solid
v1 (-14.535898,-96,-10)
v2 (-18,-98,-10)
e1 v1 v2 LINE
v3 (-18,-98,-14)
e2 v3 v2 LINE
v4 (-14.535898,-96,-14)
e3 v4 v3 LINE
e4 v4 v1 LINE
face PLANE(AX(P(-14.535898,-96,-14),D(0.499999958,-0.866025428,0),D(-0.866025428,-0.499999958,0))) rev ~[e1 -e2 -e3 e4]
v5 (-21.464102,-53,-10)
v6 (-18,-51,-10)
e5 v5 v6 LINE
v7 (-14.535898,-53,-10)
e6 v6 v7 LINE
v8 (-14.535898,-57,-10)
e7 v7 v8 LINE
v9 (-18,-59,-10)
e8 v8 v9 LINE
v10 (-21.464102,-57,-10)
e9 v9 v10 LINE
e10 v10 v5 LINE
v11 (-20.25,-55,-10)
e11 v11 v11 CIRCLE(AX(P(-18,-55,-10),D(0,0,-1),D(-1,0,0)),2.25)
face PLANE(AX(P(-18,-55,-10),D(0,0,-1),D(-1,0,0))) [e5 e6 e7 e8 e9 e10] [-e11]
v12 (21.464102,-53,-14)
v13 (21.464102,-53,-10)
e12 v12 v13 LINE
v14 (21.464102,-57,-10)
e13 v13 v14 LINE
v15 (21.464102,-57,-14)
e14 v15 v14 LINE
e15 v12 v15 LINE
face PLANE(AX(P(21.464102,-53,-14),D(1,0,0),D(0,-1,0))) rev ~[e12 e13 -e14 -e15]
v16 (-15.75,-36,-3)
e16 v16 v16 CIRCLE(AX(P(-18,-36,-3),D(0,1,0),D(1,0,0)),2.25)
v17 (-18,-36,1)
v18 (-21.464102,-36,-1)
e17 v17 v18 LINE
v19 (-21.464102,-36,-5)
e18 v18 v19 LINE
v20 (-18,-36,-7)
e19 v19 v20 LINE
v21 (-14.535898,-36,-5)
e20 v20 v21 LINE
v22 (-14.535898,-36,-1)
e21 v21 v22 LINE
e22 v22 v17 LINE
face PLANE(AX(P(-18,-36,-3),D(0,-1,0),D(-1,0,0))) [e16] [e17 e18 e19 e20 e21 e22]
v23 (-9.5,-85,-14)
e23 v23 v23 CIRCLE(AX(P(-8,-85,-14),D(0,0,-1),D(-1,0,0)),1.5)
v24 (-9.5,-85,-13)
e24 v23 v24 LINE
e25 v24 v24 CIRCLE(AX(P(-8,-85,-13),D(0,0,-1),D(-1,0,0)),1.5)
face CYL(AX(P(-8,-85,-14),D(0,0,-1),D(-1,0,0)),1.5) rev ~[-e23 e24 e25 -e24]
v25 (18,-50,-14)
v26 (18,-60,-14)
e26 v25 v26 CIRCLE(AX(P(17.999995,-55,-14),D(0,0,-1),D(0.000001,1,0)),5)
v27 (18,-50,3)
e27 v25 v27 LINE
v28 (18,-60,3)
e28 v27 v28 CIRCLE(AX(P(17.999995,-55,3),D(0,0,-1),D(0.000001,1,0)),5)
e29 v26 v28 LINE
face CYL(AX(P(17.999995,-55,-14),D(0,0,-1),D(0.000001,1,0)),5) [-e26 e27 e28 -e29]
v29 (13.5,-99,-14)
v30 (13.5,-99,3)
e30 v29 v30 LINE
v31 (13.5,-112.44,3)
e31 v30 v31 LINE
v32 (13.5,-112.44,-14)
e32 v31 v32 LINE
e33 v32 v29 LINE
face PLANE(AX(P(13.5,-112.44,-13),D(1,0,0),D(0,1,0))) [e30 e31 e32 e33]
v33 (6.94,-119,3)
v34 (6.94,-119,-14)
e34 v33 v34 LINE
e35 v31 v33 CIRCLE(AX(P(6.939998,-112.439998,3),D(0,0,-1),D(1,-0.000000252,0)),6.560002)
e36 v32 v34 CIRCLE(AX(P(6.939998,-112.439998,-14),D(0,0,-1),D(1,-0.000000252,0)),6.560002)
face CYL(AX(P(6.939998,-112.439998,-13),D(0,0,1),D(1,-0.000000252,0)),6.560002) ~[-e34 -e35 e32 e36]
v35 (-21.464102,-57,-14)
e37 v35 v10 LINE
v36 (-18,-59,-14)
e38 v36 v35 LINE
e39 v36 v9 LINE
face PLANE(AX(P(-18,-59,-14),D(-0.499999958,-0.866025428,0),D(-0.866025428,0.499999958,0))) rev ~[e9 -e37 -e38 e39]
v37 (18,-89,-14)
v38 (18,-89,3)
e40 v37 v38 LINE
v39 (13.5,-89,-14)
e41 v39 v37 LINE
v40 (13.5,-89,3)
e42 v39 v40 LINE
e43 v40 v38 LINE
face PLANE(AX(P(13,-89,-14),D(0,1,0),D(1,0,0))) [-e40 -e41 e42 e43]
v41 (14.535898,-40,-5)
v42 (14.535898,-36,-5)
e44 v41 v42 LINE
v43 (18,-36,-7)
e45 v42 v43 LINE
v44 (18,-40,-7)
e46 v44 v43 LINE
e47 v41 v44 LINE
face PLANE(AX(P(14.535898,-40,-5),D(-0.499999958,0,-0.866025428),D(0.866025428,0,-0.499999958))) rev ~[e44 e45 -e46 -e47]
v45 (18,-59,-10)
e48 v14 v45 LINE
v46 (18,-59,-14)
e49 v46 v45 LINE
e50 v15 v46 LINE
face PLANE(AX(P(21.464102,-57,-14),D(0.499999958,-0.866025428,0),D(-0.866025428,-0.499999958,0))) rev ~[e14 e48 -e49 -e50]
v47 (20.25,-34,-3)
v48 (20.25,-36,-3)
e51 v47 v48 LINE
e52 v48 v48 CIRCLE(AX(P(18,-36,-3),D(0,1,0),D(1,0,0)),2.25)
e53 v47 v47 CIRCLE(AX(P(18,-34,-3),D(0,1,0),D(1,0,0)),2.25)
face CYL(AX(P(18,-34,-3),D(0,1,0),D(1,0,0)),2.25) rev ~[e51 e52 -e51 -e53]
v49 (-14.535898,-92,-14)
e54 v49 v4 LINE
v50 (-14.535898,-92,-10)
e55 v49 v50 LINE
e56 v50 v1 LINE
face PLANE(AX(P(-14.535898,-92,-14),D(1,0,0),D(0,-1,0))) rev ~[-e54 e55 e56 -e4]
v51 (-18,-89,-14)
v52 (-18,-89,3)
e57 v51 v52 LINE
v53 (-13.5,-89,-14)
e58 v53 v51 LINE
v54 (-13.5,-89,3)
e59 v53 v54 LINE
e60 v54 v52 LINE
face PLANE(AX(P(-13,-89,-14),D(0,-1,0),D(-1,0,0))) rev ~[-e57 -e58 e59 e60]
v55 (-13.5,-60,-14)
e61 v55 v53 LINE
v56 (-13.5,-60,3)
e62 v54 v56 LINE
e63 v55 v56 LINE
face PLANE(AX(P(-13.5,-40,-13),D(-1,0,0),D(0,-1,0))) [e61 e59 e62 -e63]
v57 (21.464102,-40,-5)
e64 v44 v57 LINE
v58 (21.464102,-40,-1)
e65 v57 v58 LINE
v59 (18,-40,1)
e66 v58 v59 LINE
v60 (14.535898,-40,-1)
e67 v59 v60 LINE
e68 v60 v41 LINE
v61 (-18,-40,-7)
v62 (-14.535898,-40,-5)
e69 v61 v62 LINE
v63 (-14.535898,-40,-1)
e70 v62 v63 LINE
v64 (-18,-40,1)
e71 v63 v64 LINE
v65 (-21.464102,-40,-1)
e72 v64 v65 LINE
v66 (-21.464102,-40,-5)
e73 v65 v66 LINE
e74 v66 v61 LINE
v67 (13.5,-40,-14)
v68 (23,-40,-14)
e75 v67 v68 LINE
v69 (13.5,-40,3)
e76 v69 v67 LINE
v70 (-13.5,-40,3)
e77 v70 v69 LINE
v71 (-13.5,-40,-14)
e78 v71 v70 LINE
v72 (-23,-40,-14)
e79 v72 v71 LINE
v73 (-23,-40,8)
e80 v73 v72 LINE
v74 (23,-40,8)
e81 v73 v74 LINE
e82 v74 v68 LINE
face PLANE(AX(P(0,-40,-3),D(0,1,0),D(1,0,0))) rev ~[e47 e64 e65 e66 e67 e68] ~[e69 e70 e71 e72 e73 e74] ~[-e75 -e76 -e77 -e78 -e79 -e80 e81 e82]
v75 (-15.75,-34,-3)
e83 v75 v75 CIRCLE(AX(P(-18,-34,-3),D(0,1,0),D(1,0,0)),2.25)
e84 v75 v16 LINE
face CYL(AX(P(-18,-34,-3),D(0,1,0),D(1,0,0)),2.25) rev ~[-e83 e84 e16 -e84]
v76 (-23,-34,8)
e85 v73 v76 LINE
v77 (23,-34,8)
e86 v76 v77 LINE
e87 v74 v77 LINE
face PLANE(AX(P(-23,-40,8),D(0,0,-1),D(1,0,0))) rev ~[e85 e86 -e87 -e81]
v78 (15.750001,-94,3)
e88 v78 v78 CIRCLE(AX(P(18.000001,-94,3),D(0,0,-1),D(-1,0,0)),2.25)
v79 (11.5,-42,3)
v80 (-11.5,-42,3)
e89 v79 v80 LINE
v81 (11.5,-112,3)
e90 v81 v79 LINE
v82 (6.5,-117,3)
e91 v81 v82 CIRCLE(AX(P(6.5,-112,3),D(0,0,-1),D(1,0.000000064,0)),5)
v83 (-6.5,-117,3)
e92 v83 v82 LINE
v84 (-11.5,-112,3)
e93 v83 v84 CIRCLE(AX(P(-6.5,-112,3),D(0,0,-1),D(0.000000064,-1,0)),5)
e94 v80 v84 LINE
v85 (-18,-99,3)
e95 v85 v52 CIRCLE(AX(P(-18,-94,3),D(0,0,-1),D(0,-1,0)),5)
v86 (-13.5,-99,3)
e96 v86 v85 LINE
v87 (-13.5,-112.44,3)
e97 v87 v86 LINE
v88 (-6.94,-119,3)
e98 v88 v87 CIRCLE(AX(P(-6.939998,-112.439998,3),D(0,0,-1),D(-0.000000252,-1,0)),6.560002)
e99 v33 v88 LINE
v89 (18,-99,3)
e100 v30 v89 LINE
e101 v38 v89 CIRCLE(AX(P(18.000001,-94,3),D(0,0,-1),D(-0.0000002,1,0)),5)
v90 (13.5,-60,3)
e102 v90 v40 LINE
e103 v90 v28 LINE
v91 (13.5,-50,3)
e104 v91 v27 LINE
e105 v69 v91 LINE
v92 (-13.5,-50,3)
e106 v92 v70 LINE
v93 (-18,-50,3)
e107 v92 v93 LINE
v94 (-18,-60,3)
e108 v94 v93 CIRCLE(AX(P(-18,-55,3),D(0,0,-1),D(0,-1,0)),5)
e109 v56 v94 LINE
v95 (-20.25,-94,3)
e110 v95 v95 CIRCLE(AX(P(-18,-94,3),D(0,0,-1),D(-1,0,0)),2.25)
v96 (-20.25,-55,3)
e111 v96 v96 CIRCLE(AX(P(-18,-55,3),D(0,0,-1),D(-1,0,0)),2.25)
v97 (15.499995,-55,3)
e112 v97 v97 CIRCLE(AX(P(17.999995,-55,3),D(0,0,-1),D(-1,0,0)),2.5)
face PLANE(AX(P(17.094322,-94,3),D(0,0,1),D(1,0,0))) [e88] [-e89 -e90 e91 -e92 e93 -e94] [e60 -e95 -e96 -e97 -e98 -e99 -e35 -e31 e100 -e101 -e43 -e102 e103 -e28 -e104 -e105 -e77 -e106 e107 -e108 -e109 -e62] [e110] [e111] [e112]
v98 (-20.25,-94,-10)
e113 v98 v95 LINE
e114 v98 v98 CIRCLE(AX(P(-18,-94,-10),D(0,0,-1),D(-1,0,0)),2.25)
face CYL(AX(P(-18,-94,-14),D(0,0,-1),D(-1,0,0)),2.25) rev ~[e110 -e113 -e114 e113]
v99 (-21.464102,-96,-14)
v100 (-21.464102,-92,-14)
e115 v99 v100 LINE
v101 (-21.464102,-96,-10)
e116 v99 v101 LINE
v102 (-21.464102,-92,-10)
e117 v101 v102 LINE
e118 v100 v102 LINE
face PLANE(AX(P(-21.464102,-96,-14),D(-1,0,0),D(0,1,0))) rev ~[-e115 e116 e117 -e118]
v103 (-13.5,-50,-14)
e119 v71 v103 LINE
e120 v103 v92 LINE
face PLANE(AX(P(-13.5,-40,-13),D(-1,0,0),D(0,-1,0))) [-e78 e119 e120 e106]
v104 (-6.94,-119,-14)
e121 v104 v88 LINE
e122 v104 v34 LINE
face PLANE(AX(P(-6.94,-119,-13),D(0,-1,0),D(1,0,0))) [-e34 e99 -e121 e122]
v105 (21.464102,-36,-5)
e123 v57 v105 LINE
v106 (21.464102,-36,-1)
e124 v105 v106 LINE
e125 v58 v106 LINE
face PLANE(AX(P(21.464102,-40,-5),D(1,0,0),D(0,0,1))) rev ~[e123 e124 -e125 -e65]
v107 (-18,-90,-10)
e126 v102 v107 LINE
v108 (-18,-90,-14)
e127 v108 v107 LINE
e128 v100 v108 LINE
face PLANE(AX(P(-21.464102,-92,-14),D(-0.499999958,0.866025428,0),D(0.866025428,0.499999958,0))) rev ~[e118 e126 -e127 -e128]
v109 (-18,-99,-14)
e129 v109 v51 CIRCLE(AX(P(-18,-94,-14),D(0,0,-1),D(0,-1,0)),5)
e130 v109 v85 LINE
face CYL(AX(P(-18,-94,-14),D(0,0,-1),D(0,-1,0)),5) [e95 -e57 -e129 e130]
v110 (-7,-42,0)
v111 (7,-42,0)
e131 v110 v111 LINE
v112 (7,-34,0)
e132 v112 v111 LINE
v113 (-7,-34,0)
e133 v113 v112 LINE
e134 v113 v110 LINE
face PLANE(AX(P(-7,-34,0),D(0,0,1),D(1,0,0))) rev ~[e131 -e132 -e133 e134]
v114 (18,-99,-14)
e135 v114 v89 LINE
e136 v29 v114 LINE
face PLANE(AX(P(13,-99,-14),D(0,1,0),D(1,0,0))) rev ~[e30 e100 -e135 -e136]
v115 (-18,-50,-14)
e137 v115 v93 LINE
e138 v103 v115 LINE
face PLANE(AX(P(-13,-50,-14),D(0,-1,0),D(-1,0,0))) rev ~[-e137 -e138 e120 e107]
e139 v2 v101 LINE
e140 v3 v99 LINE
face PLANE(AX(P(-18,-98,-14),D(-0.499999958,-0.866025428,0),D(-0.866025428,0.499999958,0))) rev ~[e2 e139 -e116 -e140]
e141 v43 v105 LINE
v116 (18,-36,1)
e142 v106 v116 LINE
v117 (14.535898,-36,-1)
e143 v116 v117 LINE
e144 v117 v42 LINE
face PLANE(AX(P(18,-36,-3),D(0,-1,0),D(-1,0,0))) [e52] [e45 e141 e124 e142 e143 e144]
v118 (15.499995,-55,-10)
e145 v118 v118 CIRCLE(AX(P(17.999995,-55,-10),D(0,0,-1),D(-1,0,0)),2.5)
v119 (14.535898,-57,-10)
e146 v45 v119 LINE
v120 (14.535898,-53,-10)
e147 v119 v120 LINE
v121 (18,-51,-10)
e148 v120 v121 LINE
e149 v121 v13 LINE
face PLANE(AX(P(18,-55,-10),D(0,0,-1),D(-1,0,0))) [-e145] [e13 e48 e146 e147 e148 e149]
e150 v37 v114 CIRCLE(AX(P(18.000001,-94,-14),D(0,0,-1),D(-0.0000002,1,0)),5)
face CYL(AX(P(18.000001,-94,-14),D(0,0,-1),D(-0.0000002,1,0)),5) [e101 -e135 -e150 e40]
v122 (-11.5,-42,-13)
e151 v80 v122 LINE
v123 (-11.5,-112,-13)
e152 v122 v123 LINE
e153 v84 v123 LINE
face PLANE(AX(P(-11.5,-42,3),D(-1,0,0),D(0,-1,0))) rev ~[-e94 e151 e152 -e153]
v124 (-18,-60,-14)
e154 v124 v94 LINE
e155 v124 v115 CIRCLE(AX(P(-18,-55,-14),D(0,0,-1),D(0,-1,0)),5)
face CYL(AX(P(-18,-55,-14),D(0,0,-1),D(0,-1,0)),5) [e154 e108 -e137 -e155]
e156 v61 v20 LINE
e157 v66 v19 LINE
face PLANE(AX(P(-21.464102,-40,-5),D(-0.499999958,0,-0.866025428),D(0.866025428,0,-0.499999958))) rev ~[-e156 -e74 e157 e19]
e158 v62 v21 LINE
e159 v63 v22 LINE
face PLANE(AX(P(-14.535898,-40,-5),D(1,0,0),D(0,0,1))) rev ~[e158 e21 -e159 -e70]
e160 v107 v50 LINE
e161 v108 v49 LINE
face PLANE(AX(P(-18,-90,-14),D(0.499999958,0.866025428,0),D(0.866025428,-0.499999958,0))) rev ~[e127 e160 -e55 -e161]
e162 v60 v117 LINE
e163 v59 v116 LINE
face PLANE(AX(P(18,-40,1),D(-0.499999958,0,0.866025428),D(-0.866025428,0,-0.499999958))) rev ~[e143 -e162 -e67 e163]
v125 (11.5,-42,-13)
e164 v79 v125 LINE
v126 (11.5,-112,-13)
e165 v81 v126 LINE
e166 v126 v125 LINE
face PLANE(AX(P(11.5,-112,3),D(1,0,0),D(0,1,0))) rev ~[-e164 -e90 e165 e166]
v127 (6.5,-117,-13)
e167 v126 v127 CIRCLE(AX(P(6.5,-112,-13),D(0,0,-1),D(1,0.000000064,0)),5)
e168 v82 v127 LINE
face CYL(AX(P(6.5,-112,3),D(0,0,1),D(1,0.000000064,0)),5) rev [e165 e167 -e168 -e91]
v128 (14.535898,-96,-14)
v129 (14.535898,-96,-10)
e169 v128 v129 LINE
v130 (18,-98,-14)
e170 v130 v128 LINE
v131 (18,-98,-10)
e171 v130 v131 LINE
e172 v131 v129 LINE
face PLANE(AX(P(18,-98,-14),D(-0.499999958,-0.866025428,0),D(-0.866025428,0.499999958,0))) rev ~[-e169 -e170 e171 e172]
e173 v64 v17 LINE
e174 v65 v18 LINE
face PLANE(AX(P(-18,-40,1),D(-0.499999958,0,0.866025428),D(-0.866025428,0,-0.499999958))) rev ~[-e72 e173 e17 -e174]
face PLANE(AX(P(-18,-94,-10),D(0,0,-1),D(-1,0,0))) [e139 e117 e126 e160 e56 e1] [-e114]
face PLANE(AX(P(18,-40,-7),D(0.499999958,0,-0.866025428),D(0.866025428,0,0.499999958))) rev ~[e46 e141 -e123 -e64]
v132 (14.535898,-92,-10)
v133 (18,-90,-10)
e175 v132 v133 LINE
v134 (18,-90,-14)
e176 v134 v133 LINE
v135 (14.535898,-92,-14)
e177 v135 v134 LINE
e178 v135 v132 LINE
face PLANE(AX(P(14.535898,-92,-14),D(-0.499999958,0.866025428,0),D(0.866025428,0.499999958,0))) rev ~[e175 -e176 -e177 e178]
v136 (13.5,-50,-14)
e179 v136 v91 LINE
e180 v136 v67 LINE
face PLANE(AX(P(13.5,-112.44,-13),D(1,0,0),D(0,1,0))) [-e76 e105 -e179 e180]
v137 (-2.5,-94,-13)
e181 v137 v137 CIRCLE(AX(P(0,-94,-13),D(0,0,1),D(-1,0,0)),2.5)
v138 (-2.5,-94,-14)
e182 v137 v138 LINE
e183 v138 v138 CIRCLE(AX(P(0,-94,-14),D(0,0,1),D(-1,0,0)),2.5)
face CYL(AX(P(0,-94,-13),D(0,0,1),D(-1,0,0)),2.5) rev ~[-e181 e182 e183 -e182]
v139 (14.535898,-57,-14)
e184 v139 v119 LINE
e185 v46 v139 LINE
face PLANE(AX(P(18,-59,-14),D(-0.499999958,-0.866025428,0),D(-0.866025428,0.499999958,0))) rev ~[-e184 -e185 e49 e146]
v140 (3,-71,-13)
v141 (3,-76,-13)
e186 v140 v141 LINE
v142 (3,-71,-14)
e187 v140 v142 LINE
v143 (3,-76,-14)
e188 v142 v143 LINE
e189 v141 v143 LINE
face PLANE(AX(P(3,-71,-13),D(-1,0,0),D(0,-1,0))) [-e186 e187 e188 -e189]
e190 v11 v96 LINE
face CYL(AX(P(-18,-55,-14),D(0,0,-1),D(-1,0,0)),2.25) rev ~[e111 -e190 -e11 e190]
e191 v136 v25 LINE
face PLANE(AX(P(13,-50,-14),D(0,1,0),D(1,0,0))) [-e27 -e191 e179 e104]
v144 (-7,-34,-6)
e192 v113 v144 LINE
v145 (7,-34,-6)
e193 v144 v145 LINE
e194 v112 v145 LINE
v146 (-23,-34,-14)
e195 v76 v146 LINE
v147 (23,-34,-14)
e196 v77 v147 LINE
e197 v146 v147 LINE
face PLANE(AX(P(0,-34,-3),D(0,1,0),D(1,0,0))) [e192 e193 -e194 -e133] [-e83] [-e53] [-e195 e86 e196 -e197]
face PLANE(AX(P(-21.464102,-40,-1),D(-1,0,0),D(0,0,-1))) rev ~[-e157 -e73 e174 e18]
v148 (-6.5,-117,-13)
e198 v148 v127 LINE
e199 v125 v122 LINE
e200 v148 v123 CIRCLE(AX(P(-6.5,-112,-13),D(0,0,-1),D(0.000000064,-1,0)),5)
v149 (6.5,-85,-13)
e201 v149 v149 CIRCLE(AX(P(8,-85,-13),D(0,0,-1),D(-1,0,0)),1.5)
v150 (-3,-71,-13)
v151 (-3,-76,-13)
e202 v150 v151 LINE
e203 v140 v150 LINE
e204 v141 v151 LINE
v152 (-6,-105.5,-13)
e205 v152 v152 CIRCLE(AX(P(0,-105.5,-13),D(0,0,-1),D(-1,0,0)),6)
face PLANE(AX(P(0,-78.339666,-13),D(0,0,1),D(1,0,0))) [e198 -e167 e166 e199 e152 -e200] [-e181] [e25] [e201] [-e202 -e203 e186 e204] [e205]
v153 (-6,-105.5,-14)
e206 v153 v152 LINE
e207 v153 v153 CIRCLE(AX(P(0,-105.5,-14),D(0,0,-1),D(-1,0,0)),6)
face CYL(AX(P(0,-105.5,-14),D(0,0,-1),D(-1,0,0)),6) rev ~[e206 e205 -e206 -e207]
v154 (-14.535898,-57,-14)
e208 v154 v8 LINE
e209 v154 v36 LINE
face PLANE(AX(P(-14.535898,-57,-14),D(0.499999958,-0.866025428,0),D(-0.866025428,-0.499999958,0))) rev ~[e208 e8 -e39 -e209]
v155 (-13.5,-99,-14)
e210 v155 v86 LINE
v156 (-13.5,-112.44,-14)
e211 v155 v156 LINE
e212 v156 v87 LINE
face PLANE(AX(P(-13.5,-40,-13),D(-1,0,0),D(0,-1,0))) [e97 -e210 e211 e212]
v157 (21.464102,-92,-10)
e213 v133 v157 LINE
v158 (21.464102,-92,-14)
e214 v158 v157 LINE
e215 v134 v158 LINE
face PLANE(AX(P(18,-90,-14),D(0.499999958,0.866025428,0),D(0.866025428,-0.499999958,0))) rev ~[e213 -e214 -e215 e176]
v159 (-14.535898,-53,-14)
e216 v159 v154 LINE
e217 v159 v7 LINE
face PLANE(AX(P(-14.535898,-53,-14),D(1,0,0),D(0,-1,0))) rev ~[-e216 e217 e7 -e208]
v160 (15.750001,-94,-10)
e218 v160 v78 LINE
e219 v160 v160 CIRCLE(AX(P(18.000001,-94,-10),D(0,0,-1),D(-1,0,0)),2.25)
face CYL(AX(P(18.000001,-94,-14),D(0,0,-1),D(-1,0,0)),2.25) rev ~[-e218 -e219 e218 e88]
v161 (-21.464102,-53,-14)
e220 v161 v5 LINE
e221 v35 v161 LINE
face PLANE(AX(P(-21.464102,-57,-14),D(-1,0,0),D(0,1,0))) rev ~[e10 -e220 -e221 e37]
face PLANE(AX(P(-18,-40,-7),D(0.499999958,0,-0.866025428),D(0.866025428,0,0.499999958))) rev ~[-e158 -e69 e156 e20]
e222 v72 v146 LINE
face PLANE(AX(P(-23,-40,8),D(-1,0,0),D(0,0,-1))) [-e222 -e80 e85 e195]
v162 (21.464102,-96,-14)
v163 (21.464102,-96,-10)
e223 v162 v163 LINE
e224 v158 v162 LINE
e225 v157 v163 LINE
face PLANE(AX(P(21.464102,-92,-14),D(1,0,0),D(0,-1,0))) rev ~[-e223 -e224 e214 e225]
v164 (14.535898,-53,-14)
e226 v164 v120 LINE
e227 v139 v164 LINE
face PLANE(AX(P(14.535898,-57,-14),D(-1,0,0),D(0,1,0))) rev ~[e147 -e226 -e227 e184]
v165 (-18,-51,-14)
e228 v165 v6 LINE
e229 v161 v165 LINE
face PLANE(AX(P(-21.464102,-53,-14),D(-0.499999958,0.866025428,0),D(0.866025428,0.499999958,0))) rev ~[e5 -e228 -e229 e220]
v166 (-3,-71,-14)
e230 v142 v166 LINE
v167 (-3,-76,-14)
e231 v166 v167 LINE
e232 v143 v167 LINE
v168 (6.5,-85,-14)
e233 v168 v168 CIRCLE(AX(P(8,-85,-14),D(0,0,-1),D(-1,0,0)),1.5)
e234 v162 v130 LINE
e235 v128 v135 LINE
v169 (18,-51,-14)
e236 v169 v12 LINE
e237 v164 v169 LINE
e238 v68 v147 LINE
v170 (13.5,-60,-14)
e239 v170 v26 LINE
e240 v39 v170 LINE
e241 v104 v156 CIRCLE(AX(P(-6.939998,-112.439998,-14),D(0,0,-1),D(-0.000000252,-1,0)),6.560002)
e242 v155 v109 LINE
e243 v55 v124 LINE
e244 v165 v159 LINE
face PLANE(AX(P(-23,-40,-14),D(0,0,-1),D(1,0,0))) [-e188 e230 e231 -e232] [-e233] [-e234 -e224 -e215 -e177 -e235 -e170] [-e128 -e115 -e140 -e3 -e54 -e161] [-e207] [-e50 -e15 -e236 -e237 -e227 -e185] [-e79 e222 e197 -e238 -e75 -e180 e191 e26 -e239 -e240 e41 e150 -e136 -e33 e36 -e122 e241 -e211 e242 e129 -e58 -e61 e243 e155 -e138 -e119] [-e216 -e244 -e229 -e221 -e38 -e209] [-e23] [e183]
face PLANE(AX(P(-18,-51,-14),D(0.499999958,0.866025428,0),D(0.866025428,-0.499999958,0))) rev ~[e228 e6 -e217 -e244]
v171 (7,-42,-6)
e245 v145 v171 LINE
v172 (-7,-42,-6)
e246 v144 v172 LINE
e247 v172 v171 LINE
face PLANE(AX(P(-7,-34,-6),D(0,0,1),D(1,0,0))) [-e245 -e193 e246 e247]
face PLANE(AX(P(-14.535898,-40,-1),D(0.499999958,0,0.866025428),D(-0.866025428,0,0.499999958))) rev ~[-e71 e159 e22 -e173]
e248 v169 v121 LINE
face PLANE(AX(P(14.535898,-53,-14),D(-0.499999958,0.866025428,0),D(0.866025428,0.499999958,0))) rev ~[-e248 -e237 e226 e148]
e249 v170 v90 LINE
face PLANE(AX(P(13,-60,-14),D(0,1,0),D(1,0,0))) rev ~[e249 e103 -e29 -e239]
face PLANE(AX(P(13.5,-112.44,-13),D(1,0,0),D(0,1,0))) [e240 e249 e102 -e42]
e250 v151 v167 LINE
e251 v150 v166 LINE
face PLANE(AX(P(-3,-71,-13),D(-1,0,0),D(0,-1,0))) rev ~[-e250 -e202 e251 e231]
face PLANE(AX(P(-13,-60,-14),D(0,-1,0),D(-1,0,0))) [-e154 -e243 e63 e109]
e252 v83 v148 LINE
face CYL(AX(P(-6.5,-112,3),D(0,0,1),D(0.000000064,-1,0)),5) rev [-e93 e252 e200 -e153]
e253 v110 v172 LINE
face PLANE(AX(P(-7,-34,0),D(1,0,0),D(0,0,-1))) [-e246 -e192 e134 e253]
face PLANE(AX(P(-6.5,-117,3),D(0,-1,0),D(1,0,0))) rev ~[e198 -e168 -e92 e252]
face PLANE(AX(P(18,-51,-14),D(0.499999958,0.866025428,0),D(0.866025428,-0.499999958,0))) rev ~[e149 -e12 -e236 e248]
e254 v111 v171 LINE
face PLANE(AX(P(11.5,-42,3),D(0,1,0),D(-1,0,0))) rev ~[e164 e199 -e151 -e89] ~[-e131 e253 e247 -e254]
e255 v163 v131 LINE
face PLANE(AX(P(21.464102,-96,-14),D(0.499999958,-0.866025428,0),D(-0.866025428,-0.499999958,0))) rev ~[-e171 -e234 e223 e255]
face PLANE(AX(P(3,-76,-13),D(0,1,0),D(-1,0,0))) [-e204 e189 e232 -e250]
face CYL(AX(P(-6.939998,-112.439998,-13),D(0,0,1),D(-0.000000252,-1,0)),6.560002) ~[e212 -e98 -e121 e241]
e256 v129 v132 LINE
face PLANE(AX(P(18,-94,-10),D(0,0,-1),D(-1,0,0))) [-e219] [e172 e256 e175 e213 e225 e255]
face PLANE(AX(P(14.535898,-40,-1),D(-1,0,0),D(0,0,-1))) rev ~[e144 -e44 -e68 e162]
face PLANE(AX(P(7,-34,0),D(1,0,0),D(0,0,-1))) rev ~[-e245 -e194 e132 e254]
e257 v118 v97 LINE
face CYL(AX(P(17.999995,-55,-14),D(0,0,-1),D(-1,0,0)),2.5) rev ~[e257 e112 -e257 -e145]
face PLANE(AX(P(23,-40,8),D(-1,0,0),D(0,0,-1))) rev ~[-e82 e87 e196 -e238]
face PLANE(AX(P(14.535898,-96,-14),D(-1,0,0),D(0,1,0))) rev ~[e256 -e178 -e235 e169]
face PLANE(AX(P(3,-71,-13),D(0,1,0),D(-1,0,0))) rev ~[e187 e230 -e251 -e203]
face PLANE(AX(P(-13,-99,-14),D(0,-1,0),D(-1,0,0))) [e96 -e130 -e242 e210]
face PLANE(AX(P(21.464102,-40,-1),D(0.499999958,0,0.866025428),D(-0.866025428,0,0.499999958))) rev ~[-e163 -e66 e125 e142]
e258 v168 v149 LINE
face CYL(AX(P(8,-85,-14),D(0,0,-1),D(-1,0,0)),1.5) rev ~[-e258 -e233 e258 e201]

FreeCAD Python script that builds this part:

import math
import FreeCAD as App
import Part
import Sketcher

V = App.Vector
Q = App.Units.Quantity

doc = App.newDocument("Part")
params = doc.addObject("Spreadsheet::Sheet", "Params")
for row, (alias, value) in enumerate([
    ("sketch1_radius", "5 mm"),
    ("sketch1_width", "27 mm"),
    ("sketch1_width2", "23 mm"),
    ("sketch1_height", "70 mm"),
    ("sketch1_radius2", "6.560002 mm"),
    ("pad1_length", "16 mm"),
    ("sketch2_width", "27 mm"),
    ("sketch2_radius", "6.560002 mm"),
    ("pad2_length", "1 mm"),
    ("sketch3_diameter", "12 mm"),
    ("sketch3_diameter2", "3 mm"),
    ("pocket1_length", "5 mm"),
    ("sketch4_diameter", "5 mm"),
    ("sketch4_width", "6 mm"),
    ("sketch4_height", "5 mm"),
    ("pocket2_length", "2 mm"),
    ("sketch5_diameter", "5 mm"),
    ("sketch5_radius", "5 mm"),
    ("sketch5_diameter2", "4.5 mm"),
    ("sketch5_width", "5 mm"),
    ("pad3_length", "17 mm"),
    ("sketch6_width", "46 mm"),
    ("sketch6_height", "22 mm"),
    ("pad4_length", "6 mm"),
    ("sketch7_diameter", "4.5 mm"),
    ("pocket3_length", "8 mm"),
    ("sketch8_height", "4 mm"),
    ("sketch8_length", "4 mm"),
    ("pocket4_length", "4 mm"),
    ("sketch9_width", "14 mm"),
    ("sketch9_height", "6 mm"),
    ("pocket5_length", "8 mm"),
    ("sketch10_height", "4 mm"),
    ("sketch10_length", "4 mm"),
    ("pocket6_length", "4 mm"),
], start=1):
    params.set(f"A{row}", alias)
    params.set(f"B{row}", "=" + value)
    params.setAlias(f"B{row}", alias)

body = doc.addObject("PartDesign::Body", "Body")

# Sketch on XY plane
sketch1 = body.newObject("Sketcher::SketchObject", "Sketch")
sketch1.AttachmentSupport = (doc.getObject("XY_Plane"), [""])
sketch1.MapMode = "FlatFace"
sketch1.addGeometry(Part.LineSegment(V(-13.5, 0, 0), V(-13.5, -72.4, 0)), False)
sketch1.addGeometry(Part.ArcOfCircle(Part.Circle(V(-6.9, -72.4, 0), V(0, 0, 1), 6.6), math.radians(-180), math.radians(-90)), False)
sketch1.addGeometry(Part.LineSegment(V(-6.9, -79, 0), V(6.9, -79, 0)), False)
sketch1.addGeometry(Part.ArcOfCircle(Part.Circle(V(6.9, -72.4, 0), V(0, 0, 1), 6.6), math.radians(-90), math.radians(0)), False)
sketch1.addGeometry(Part.LineSegment(V(13.5, -72.4, 0), V(13.5, 0, 0)), False)
sketch1.addGeometry(Part.LineSegment(V(13.5, 0, 0), V(-13.5, 0, 0)), False)
sketch1.addGeometry(Part.LineSegment(V(-11.5, -2, 0), V(11.5, -2, 0)), False)
sketch1.addGeometry(Part.LineSegment(V(11.5, -2, 0), V(11.5, -72, 0)), False)
sketch1.addGeometry(Part.ArcOfCircle(Part.Circle(V(6.5, -72, 0), V(0, 0, 1), 5), math.radians(-90), math.radians(0)), False)
sketch1.addGeometry(Part.LineSegment(V(6.5, -77, 0), V(-6.5, -77, 0)), False)
sketch1.addGeometry(Part.ArcOfCircle(Part.Circle(V(-6.5, -72, 0), V(0, 0, 1), 5), math.radians(180), math.radians(270)), False)
sketch1.addGeometry(Part.LineSegment(V(-11.5, -72, 0), V(-11.5, -2, 0)), False)
sketch1.addConstraint(Sketcher.Constraint("Tangent", 0, 2, 1, 1))
sketch1.addConstraint(Sketcher.Constraint("Tangent", 1, 2, 2, 1))
sketch1.addConstraint(Sketcher.Constraint("Tangent", 2, 2, 3, 1))
sketch1.addConstraint(Sketcher.Constraint("Tangent", 3, 2, 4, 1))
sketch1.addConstraint(Sketcher.Constraint("Coincident", 4, 2, 5, 1))
sketch1.addConstraint(Sketcher.Constraint("Coincident", 5, 2, 0, 1))
sketch1.addConstraint(Sketcher.Constraint("Coincident", 6, 2, 7, 1))
sketch1.addConstraint(Sketcher.Constraint("Tangent", 7, 2, 8, 2))
sketch1.addConstraint(Sketcher.Constraint("Tangent", 8, 1, 9, 1))
sketch1.addConstraint(Sketcher.Constraint("Tangent", 9, 2, 10, 2))
sketch1.addConstraint(Sketcher.Constraint("Tangent", 10, 1, 11, 1))
sketch1.addConstraint(Sketcher.Constraint("Coincident", 11, 2, 6, 1))
sketch1.addConstraint(Sketcher.Constraint("Vertical", 0))
sketch1.addConstraint(Sketcher.Constraint("Horizontal", 2))
sketch1.addConstraint(Sketcher.Constraint("Vertical", 4))
sketch1.addConstraint(Sketcher.Constraint("Horizontal", 5))
sketch1.addConstraint(Sketcher.Constraint("Horizontal", 6))
sketch1.addConstraint(Sketcher.Constraint("Vertical", 7))
sketch1.addConstraint(Sketcher.Constraint("Horizontal", 9))
sketch1.addConstraint(Sketcher.Constraint("Vertical", 11))
sketch1.addConstraint(Sketcher.Constraint("Equal", 1, 3))
sketch1.addConstraint(Sketcher.Constraint("Equal", 8, 10))
sketch1.addConstraint(Sketcher.Constraint("Symmetric", 4, 2, 5, 2, -1, 1))
sketch1.addConstraint(Sketcher.Constraint("Radius", 8, Q("5 mm")))
sketch1.addConstraint(Sketcher.Constraint("DistanceX", 5, 2, 5, 1, Q("27 mm")))
sketch1.addConstraint(Sketcher.Constraint("DistanceX", 6, 1, 6, 2, Q("23 mm")))
sketch1.addConstraint(Sketcher.Constraint("DistanceY", 7, 2, 7, 1, Q("70 mm")))
sketch1.addConstraint(Sketcher.Constraint("Radius", 1, Q("6.560002 mm")))
sketch1.addConstraint(Sketcher.Constraint("DistanceY", 8, 3, -1, 1, Q("72 mm")))
sketch1.addConstraint(Sketcher.Constraint("DistanceY", 1, 2, -1, 1, Q("79 mm")))
sketch1.addConstraint(Sketcher.Constraint("DistanceX", 0, 2, 10, 3, Q("7 mm")))
sketch1.setExpression("Constraints[23]", "Params.sketch1_radius")
sketch1.setExpression("Constraints[24]", "Params.sketch1_width")
sketch1.setExpression("Constraints[25]", "Params.sketch1_width2")
sketch1.setExpression("Constraints[26]", "Params.sketch1_height")
sketch1.setExpression("Constraints[27]", "Params.sketch1_radius2")
pad1 = body.newObject("PartDesign::Pad", "Pad")
pad1.Profile = sketch1
pad1.setExpression("Length", "Params.pad1_length")

# Sketch on XY plane
sketch2 = body.newObject("Sketcher::SketchObject", "Sketch001")
sketch2.AttachmentSupport = (doc.getObject("XY_Plane"), [""])
sketch2.MapMode = "FlatFace"
sketch2.AttachmentOffset = App.Placement(V(0, 0, 16), App.Rotation())
sketch2.addGeometry(Part.LineSegment(V(14, 0, 0), V(-14, 0, 0)), False)
sketch2.addGeometry(Part.LineSegment(V(-14, 0, 0), V(-14, -72, 0)), False)
sketch2.addGeometry(Part.ArcOfCircle(Part.Circle(V(-7, -72, 0), V(0, 0, 1), 7), math.radians(-180), math.radians(-90)), False)
sketch2.addGeometry(Part.LineSegment(V(-7, -79, 0), V(7, -79, 0)), False)
sketch2.addGeometry(Part.ArcOfCircle(Part.Circle(V(7, -72, 0), V(0, 0, 1), 7), math.radians(-90), math.radians(0)), False)
sketch2.addGeometry(Part.LineSegment(V(14, -72, 0), V(14, 0, 0)), False)
sketch2.addConstraint(Sketcher.Constraint("Coincident", 0, 2, 1, 1))
sketch2.addConstraint(Sketcher.Constraint("Tangent", 1, 2, 2, 1))
sketch2.addConstraint(Sketcher.Constraint("Tangent", 2, 2, 3, 1))
sketch2.addConstraint(Sketcher.Constraint("Tangent", 3, 2, 4, 1))
sketch2.addConstraint(Sketcher.Constraint("Tangent", 4, 2, 5, 1))
sketch2.addConstraint(Sketcher.Constraint("Coincident", 5, 2, 0, 1))
sketch2.addConstraint(Sketcher.Constraint("Horizontal", 0))
sketch2.addConstraint(Sketcher.Constraint("Vertical", 1))
sketch2.addConstraint(Sketcher.Constraint("Horizontal", 3))
sketch2.addConstraint(Sketcher.Constraint("Vertical", 5))
sketch2.addConstraint(Sketcher.Constraint("Equal", 2, 4))
sketch2.addConstraint(Sketcher.Constraint("Symmetric", 0, 2, 5, 2, -1, 1))
sketch2.addConstraint(Sketcher.Constraint("DistanceX", 0, 2, 0, 1, Q("27 mm")))
sketch2.addConstraint(Sketcher.Constraint("Radius", 2, Q("6.560002 mm")))
sketch2.addConstraint(Sketcher.Constraint("DistanceY", 2, 2, -1, 1, Q("79 mm")))
sketch2.setExpression("Constraints[12]", "Params.sketch2_width")
sketch2.setExpression("Constraints[13]", "Params.sketch2_radius")
pad2 = body.newObject("PartDesign::Pad", "Pad001")
pad2.Profile = sketch2
pad2.setExpression("Length", "Params.pad2_length")

# Sketch on XY plane
sketch3 = body.newObject("Sketcher::SketchObject", "Sketch002")
sketch3.AttachmentSupport = (doc.getObject("XY_Plane"), [""])
sketch3.MapMode = "FlatFace"
sketch3.AttachmentOffset = App.Placement(V(0, 0, 17), App.Rotation())
sketch3.addGeometry(Part.Circle(V(0, -65.5, 0), V(0, 0, 1), 6), False)
sketch3.addGeometry(Part.Circle(V(8, -45, 0), V(0, 0, 1), 1.5), False)
sketch3.addGeometry(Part.Circle(V(-8, -45, 0), V(0, 0, 1), 1.5), False)
sketch3.addConstraint(Sketcher.Constraint("Equal", 1, 2))
sketch3.addConstraint(Sketcher.Constraint("Symmetric", 1, 3, 2, 3, -2))
sketch3.addConstraint(Sketcher.Constraint("PointOnObject", 0, 3, -2))
sketch3.addConstraint(Sketcher.Constraint("Diameter", 0, Q("12 mm")))
sketch3.addConstraint(Sketcher.Constraint("Diameter", 1, Q("3 mm")))
sketch3.addConstraint(Sketcher.Constraint("DistanceX", -1, 1, 1, 3, Q("8 mm")))
sketch3.addConstraint(Sketcher.Constraint("DistanceY", 1, 3, -1, 1, Q("45 mm")))
sketch3.addConstraint(Sketcher.Constraint("DistanceY", 0, 3, -1, 1, Q("65.5 mm")))
sketch3.setExpression("Constraints[3]", "Params.sketch3_diameter")
sketch3.setExpression("Constraints[4]", "Params.sketch3_diameter2")
pocket1 = body.newObject("PartDesign::Pocket", "Pocket")
pocket1.Profile = sketch3
pocket1.setExpression("Length", "Params.pocket1_length")

# Sketch on XY plane
sketch4 = body.newObject("Sketcher::SketchObject", "Sketch003")
sketch4.AttachmentSupport = (doc.getObject("XY_Plane"), [""])
sketch4.MapMode = "FlatFace"
sketch4.AttachmentOffset = App.Placement(V(0, 0, 16), App.Rotation())
sketch4.addGeometry(Part.Circle(V(0, -54, 0), V(0, 0, 1), 2.5), False)
sketch4.addGeometry(Part.LineSegment(V(-3, -36, 0), V(-3, -31, 0)), False)
sketch4.addGeometry(Part.LineSegment(V(-3, -31, 0), V(3, -31, 0)), False)
sketch4.addGeometry(Part.LineSegment(V(3, -31, 0), V(3, -36, 0)), False)
sketch4.addGeometry(Part.LineSegment(V(3, -36, 0), V(-3, -36, 0)), False)
sketch4.addConstraint(Sketcher.Constraint("Coincident", 1, 2, 2, 1))
sketch4.addConstraint(Sketcher.Constraint("Coincident", 2, 2, 3, 1))
sketch4.addConstraint(Sketcher.Constraint("Coincident", 3, 2, 4, 1))
sketch4.addConstraint(Sketcher.Constraint("Coincident", 4, 2, 1, 1))
sketch4.addConstraint(Sketcher.Constraint("Vertical", 1))
sketch4.addConstraint(Sketcher.Constraint("Horizontal", 2))
sketch4.addConstraint(Sketcher.Constraint("Vertical", 3))
sketch4.addConstraint(Sketcher.Constraint("Horizontal", 4))
sketch4.addConstraint(Sketcher.Constraint("PointOnObject", 0, 3, -2))
sketch4.addConstraint(Sketcher.Constraint("Diameter", 0, Q("5 mm")))
sketch4.addConstraint(Sketcher.Constraint("DistanceX", 2, 1, 2, 2, Q("6 mm")))
sketch4.addConstraint(Sketcher.Constraint("DistanceY", 1, 1, 1, 2, Q("5 mm")))
sketch4.addConstraint(Sketcher.Constraint("DistanceY", 0, 3, -1, 1, Q("54 mm")))
sketch4.addConstraint(Sketcher.Constraint("DistanceX", 1, 2, -1, 1, Q("3 mm")))
sketch4.addConstraint(Sketcher.Constraint("DistanceY", 1, 2, -1, 1, Q("31 mm")))
sketch4.setExpression("Constraints[9]", "Params.sketch4_diameter")
sketch4.setExpression("Constraints[10]", "Params.sketch4_width")
sketch4.setExpression("Constraints[11]", "Params.sketch4_height")
pocket2 = body.newObject("PartDesign::Pocket", "Pocket001")
pocket2.Profile = sketch4
pocket2.setExpression("Length", "Params.pocket2_length")
pocket2.Reversed = True

# Sketch on XY plane
sketch5 = body.newObject("Sketcher::SketchObject", "Sketch004")
sketch5.AttachmentSupport = (doc.getObject("XY_Plane"), [""])
sketch5.MapMode = "FlatFace"
sketch5.AttachmentOffset = App.Placement(V(0, 0, 17), App.Rotation())
sketch5.addGeometry(Part.LineSegment(V(-13, -59, 0), V(-13, -49, 0)), False)
sketch5.addGeometry(Part.LineSegment(V(-13, -49, 0), V(-18, -49, 0)), False)
sketch5.addGeometry(Part.ArcOfCircle(Part.Circle(V(-18, -54, 0), V(0, 0, 1), 5), math.radians(90), math.radians(270)), False)
sketch5.addGeometry(Part.LineSegment(V(-18, -59, 0), V(-13, -59, 0)), False)
sketch5.addGeometry(Part.Circle(V(-18, -54, 0), V(0, 0, 1), 2.2), False)
sketch5.addGeometry(Part.LineSegment(V(13, -49, 0), V(13, -59, 0)), False)
sketch5.addGeometry(Part.LineSegment(V(13, -59, 0), V(18, -59, 0)), False)
sketch5.addGeometry(Part.ArcOfCircle(Part.Circle(V(18, -54, 0), V(0, 0, 1), 5), math.radians(-90), math.radians(90)), False)
sketch5.addGeometry(Part.LineSegment(V(18, -49, 0), V(13, -49, 0)), False)
sketch5.addGeometry(Part.Circle(V(18, -54, 0), V(0, 0, 1), 2.2), False)
sketch5.addGeometry(Part.LineSegment(V(13, -10, 0), V(13, -20, 0)), False)
sketch5.addGeometry(Part.LineSegment(V(13, -20, 0), V(18, -20, 0)), False)
sketch5.addGeometry(Part.ArcOfCircle(Part.Circle(V(18, -15, 0), V(0, 0, 1), 5), math.radians(-90), math.radians(90)), False)
sketch5.addGeometry(Part.LineSegment(V(18, -10, 0), V(13, -10, 0)), False)
sketch5.addGeometry(Part.Circle(V(18, -15, 0), V(0, 0, 1), 2.2), False)
sketch5.addGeometry(Part.LineSegment(V(-13, -20, 0), V(-13, -10, 0)), False)
sketch5.addGeometry(Part.LineSegment(V(-13, -10, 0), V(-18, -10, 0)), False)
sketch5.addGeometry(Part.ArcOfCircle(Part.Circle(V(-18, -15, 0), V(0, 0, 1), 5), math.radians(90), math.radians(270)), False)
sketch5.addGeometry(Part.LineSegment(V(-18, -20, 0), V(-13, -20, 0)), False)
sketch5.addGeometry(Part.Circle(V(-18, -15, 0), V(0, 0, 1), 2.5), False)
sketch5.addConstraint(Sketcher.Constraint("Coincident", 0, 2, 1, 1))
sketch5.addConstraint(Sketcher.Constraint("Tangent", 1, 2, 2, 1))
sketch5.addConstraint(Sketcher.Constraint("Tangent", 2, 2, 3, 1))
sketch5.addConstraint(Sketcher.Constraint("Coincident", 3, 2, 0, 1))
sketch5.addConstraint(Sketcher.Constraint("Coincident", 5, 2, 6, 1))
sketch5.addConstraint(Sketcher.Constraint("Tangent", 6, 2, 7, 1))
sketch5.addConstraint(Sketcher.Constraint("Tangent", 7, 2, 8, 1))
sketch5.addConstraint(Sketcher.Constraint("Coincident", 8, 2, 5, 1))
sketch5.addConstraint(Sketcher.Constraint("Coincident", 10, 2, 11, 1))
sketch5.addConstraint(Sketcher.Constraint("Tangent", 11, 2, 12, 1))
sketch5.addConstraint(Sketcher.Constraint("Tangent", 12, 2, 13, 1))
sketch5.addConstraint(Sketcher.Constraint("Coincident", 13, 2, 10, 1))
sketch5.addConstraint(Sketcher.Constraint("Coincident", 15, 2, 16, 1))
sketch5.addConstraint(Sketcher.Constraint("Tangent", 16, 2, 17, 1))
sketch5.addConstraint(Sketcher.Constraint("Tangent", 17, 2, 18, 1))
sketch5.addConstraint(Sketcher.Constraint("Coincident", 18, 2, 15, 1))
sketch5.addConstraint(Sketcher.Constraint("Vertical", 0))
sketch5.addConstraint(Sketcher.Constraint("Horizontal", 1))
sketch5.addConstraint(Sketcher.Constraint("Horizontal", 3))
sketch5.addConstraint(Sketcher.Constraint("Vertical", 5))
sketch5.addConstraint(Sketcher.Constraint("Horizontal", 6))
sketch5.addConstraint(Sketcher.Constraint("Horizontal", 8))
sketch5.addConstraint(Sketcher.Constraint("Vertical", 10))
sketch5.addConstraint(Sketcher.Constraint("Horizontal", 11))
sketch5.addConstraint(Sketcher.Constraint("Horizontal", 13))
sketch5.addConstraint(Sketcher.Constraint("Vertical", 15))
sketch5.addConstraint(Sketcher.Constraint("Horizontal", 16))
sketch5.addConstraint(Sketcher.Constraint("Horizontal", 18))
sketch5.addConstraint(Sketcher.Constraint("Coincident", 4, 3, 2, 3))
sketch5.addConstraint(Sketcher.Constraint("Coincident", 9, 3, 7, 3))
sketch5.addConstraint(Sketcher.Constraint("Coincident", 14, 3, 12, 3))
sketch5.addConstraint(Sketcher.Constraint("Coincident", 19, 3, 17, 3))
sketch5.addConstraint(Sketcher.Constraint("Equal", 2, 7))
sketch5.addConstraint(Sketcher.Constraint("Equal", 4, 9))
sketch5.addConstraint(Sketcher.Constraint("Equal", 7, 12))
sketch5.addConstraint(Sketcher.Constraint("Equal", 9, 14))
sketch5.addConstraint(Sketcher.Constraint("Equal", 12, 17))
sketch5.addConstraint(Sketcher.Constraint("Symmetric", 2, 3, 7, 3, -2))
sketch5.addConstraint(Sketcher.Constraint("Symmetric", 12, 3, 17, 3, -2))
sketch5.addConstraint(Sketcher.Constraint("Vertical", 9, 3, 12, 3))
sketch5.addConstraint(Sketcher.Constraint("Vertical", 8, 2, 10, 2))
sketch5.addConstraint(Sketcher.Constraint("Vertical", 3, 2, 15, 2))
sketch5.addConstraint(Sketcher.Constraint("Equal", 3, 6))
sketch5.addConstraint(Sketcher.Constraint("Diameter", 19, Q("5 mm")))
sketch5.addConstraint(Sketcher.Constraint("Radius", 2, Q("5 mm")))
sketch5.addConstraint(Sketcher.Constraint("Diameter", 4, Q("4.5 mm")))
sketch5.addConstraint(Sketcher.Constraint("DistanceX", 1, 2, 1, 1, Q("5 mm")))
sketch5.addConstraint(Sketcher.Constraint("DistanceX", 2, 3, -1, 1, Q("18.000001 mm")))
sketch5.addConstraint(Sketcher.Constraint("DistanceY", 2, 3, -1, 1, Q("54 mm")))
sketch5.addConstraint(Sketcher.Constraint("DistanceY", 12, 3, -1, 1, Q("15 mm")))
sketch5.setExpression("Constraints[43]", "Params.sketch5_diameter")
sketch5.setExpression("Constraints[44]", "Params.sketch5_radius")
sketch5.setExpression("Constraints[45]", "Params.sketch5_diameter2")
sketch5.setExpression("Constraints[46]", "Params.sketch5_width")
pad3 = body.newObject("PartDesign::Pad", "Pad002")
pad3.Profile = sketch5
pad3.setExpression("Length", "Params.pad3_length")
pad3.Reversed = True

# Sketch on XZ plane
sketch6 = body.newObject("Sketcher::SketchObject", "Sketch005")
sketch6.AttachmentSupport = (doc.getObject("XZ_Plane"), [""])
sketch6.MapMode = "FlatFace"
sketch6.addGeometry(Part.LineSegment(V(23, 17, 0), V(23, -5, 0)), False)
sketch6.addGeometry(Part.LineSegment(V(23, -5, 0), V(-23, -5, 0)), False)
sketch6.addGeometry(Part.LineSegment(V(-23, -5, 0), V(-23, 17, 0)), False)
sketch6.addGeometry(Part.LineSegment(V(-23, 17, 0), V(23, 17, 0)), False)
sketch6.addConstraint(Sketcher.Constraint("Coincident", 0, 2, 1, 1))
sketch6.addConstraint(Sketcher.Constraint("Coincident", 1, 2, 2, 1))
sketch6.addConstraint(Sketcher.Constraint("Coincident", 2, 2, 3, 1))
sketch6.addConstraint(Sketcher.Constraint("Coincident", 3, 2, 0, 1))
sketch6.addConstraint(Sketcher.Constraint("Vertical", 0))
sketch6.addConstraint(Sketcher.Constraint("Horizontal", 1))
sketch6.addConstraint(Sketcher.Constraint("Vertical", 2))
sketch6.addConstraint(Sketcher.Constraint("Horizontal", 3))
sketch6.addConstraint(Sketcher.Constraint("DistanceX", 1, 2, 1, 1, Q("46 mm")))
sketch6.addConstraint(Sketcher.Constraint("DistanceY", 0, 2, 0, 1, Q("22 mm")))
sketch6.addConstraint(Sketcher.Constraint("DistanceX", -1, 1, 0, 2, Q("23 mm")))
sketch6.addConstraint(Sketcher.Constraint("DistanceY", 0, 2, -1, 1, Q("5 mm")))
sketch6.setExpression("Constraints[8]", "Params.sketch6_width")
sketch6.setExpression("Constraints[9]", "Params.sketch6_height")
pad4 = body.newObject("PartDesign::Pad", "Pad003")
pad4.Profile = sketch6
pad4.setExpression("Length", "Params.pad4_length")
pad4.Reversed = True

# Sketch on XZ plane
sketch7 = body.newObject("Sketcher::SketchObject", "Sketch006")
sketch7.AttachmentSupport = (doc.getObject("XZ_Plane"), [""])
sketch7.MapMode = "FlatFace"
sketch7.AttachmentOffset = App.Placement(V(0, 0, -6), App.Rotation())
sketch7.addGeometry(Part.Circle(V(18, 6, 0), V(0, 0, 1), 2.2), False)
sketch7.addGeometry(Part.Circle(V(-18, 6, 0), V(0, 0, 1), 2.2), False)
sketch7.addConstraint(Sketcher.Constraint("Equal", 0, 1))
sketch7.addConstraint(Sketcher.Constraint("Symmetric", 0, 3, 1, 3, -2))
sketch7.addConstraint(Sketcher.Constraint("Diameter", 0, Q("4.5 mm")))
sketch7.addConstraint(Sketcher.Constraint("DistanceX", -1, 1, 0, 3, Q("18 mm")))
sketch7.addConstraint(Sketcher.Constraint("DistanceY", -1, 1, 0, 3, Q("6 mm")))
sketch7.setExpression("Constraints[2]", "Params.sketch7_diameter")
pocket3 = body.newObject("PartDesign::Pocket", "Pocket002")
pocket3.Profile = sketch7
pocket3.setExpression("Length", "Params.pocket3_length")
pocket3.Reversed = True

# Sketch on XZ plane
sketch8 = body.newObject("Sketcher::SketchObject", "Sketch007")
sketch8.AttachmentSupport = (doc.getObject("XZ_Plane"), [""])
sketch8.MapMode = "FlatFace"
sketch8.addGeometry(Part.LineSegment(V(-14.5, 4, 0), V(-14.5, 8, 0)), False)
sketch8.addGeometry(Part.LineSegment(V(-14.5, 8, 0), V(-18, 10, 0)), False)
sketch8.addGeometry(Part.LineSegment(V(-18, 10, 0), V(-21.5, 8, 0)), False)
sketch8.addGeometry(Part.LineSegment(V(-21.5, 8, 0), V(-21.5, 4, 0)), False)
sketch8.addGeometry(Part.LineSegment(V(-21.5, 4, 0), V(-18, 2, 0)), False)
sketch8.addGeometry(Part.LineSegment(V(-18, 2, 0), V(-14.5, 4, 0)), False)
sketch8.addGeometry(Part.LineSegment(V(21.5, 4, 0), V(21.5, 8, 0)), False)
sketch8.addGeometry(Part.LineSegment(V(21.5, 8, 0), V(18, 10, 0)), False)
sketch8.addGeometry(Part.LineSegment(V(18, 10, 0), V(14.5, 8, 0)), False)
sketch8.addGeometry(Part.LineSegment(V(14.5, 8, 0), V(14.5, 4, 0)), False)
sketch8.addGeometry(Part.LineSegment(V(14.5, 4, 0), V(18, 2, 0)), False)
sketch8.addGeometry(Part.LineSegment(V(18, 2, 0), V(21.5, 4, 0)), False)
sketch8.addConstraint(Sketcher.Constraint("Coincident", 0, 2, 1, 1))
sketch8.addConstraint(Sketcher.Constraint("Coincident", 1, 2, 2, 1))
sketch8.addConstraint(Sketcher.Constraint("Coincident", 2, 2, 3, 1))
sketch8.addConstraint(Sketcher.Constraint("Coincident", 3, 2, 4, 1))
sketch8.addConstraint(Sketcher.Constraint("Coincident", 4, 2, 5, 1))
sketch8.addConstraint(Sketcher.Constraint("Coincident", 5, 2, 0, 1))
sketch8.addConstraint(Sketcher.Constraint("Coincident", 6, 2, 7, 1))
sketch8.addConstraint(Sketcher.Constraint("Coincident", 7, 2, 8, 1))
sketch8.addConstraint(Sketcher.Constraint("Coincident", 8, 2, 9, 1))
sketch8.addConstraint(Sketcher.Constraint("Coincident", 9, 2, 10, 1))
sketch8.addConstraint(Sketcher.Constraint("Coincident", 10, 2, 11, 1))
sketch8.addConstraint(Sketcher.Constraint("Coincident", 11, 2, 6, 1))
sketch8.addConstraint(Sketcher.Constraint("Vertical", 0))
sketch8.addConstraint(Sketcher.Constraint("Vertical", 3))
sketch8.addConstraint(Sketcher.Constraint("Vertical", 6))
sketch8.addConstraint(Sketcher.Constraint("Vertical", 9))
sketch8.addConstraint(Sketcher.Constraint("Symmetric", 2, 2, 6, 2, -2))
sketch8.addConstraint(Sketcher.Constraint("Symmetric", 1, 2, 7, 2, -2))
sketch8.addConstraint(Sketcher.Constraint("Symmetric", 0, 2, 8, 2, -2))
sketch8.addConstraint(Sketcher.Constraint("Symmetric", 4, 2, 10, 2, -2))
sketch8.addConstraint(Sketcher.Constraint("Parallel", 1, 4))
sketch8.addConstraint(Sketcher.Constraint("Parallel", 2, 5))
sketch8.addConstraint(Sketcher.Constraint("Parallel", 4, 7))
sketch8.addConstraint(Sketcher.Constraint("Parallel", 7, 10))
sketch8.addConstraint(Sketcher.Constraint("Parallel", 8, 11))
sketch8.addConstraint(Sketcher.Constraint("Horizontal", 0, 2, 2, 2))
sketch8.addConstraint(Sketcher.Constraint("Horizontal", 3, 2, 5, 2))
sketch8.addConstraint(Sketcher.Constraint("DistanceY", 0, 1, 0, 2, Q("4 mm")))
sketch8.addConstraint(Sketcher.Constraint("Angle", 1, Q("150.000003 deg")))
sketch8.addConstraint(Sketcher.Constraint("Distance", 1, Q("4 mm")))
sketch8.addConstraint(Sketcher.Constraint("DistanceY", -1, 1, 0, 2, Q("8 mm")))
sketch8.addConstraint(Sketcher.Constraint("DistanceX", 1, 2, -1, 1, Q("18 mm")))
sketch8.setExpression("Constraints[27]", "Params.sketch8_height")
sketch8.setExpression("Constraints[29]", "Params.sketch8_length")
pocket4 = body.newObject("PartDesign::Pocket", "Pocket003")
pocket4.Profile = sketch8
pocket4.setExpression("Length", "Params.pocket4_length")

# Sketch on XZ plane
sketch9 = body.newObject("Sketcher::SketchObject", "Sketch008")
sketch9.AttachmentSupport = (doc.getObject("XZ_Plane"), [""])
sketch9.MapMode = "FlatFace"
sketch9.AttachmentOffset = App.Placement(V(0, 0, -6), App.Rotation())
sketch9.addGeometry(Part.LineSegment(V(7, 9, 0), V(7, 3, 0)), False)
sketch9.addGeometry(Part.LineSegment(V(7, 3, 0), V(-7, 3, 0)), False)
sketch9.addGeometry(Part.LineSegment(V(-7, 3, 0), V(-7, 9, 0)), False)
sketch9.addGeometry(Part.LineSegment(V(-7, 9, 0), V(7, 9, 0)), False)
sketch9.addConstraint(Sketcher.Constraint("Coincident", 0, 2, 1, 1))
sketch9.addConstraint(Sketcher.Constraint("Coincident", 1, 2, 2, 1))
sketch9.addConstraint(Sketcher.Constraint("Coincident", 2, 2, 3, 1))
sketch9.addConstraint(Sketcher.Constraint("Coincident", 3, 2, 0, 1))
sketch9.addConstraint(Sketcher.Constraint("Vertical", 0))
sketch9.addConstraint(Sketcher.Constraint("Horizontal", 1))
sketch9.addConstraint(Sketcher.Constraint("Vertical", 2))
sketch9.addConstraint(Sketcher.Constraint("Horizontal", 3))
sketch9.addConstraint(Sketcher.Constraint("DistanceX", 1, 2, 1, 1, Q("14 mm")))
sketch9.addConstraint(Sketcher.Constraint("DistanceY", 0, 2, 0, 1, Q("6 mm")))
sketch9.addConstraint(Sketcher.Constraint("DistanceX", -1, 1, 0, 2, Q("7 mm")))
sketch9.addConstraint(Sketcher.Constraint("DistanceY", -1, 1, 0, 2, Q("3 mm")))
sketch9.setExpression("Constraints[8]", "Params.sketch9_width")
sketch9.setExpression("Constraints[9]", "Params.sketch9_height")
pocket5 = body.newObject("PartDesign::Pocket", "Pocket004")
pocket5.Profile = sketch9
pocket5.setExpression("Length", "Params.pocket5_length")
pocket5.Reversed = True

# Sketch on XY plane
sketch10 = body.newObject("Sketcher::SketchObject", "Sketch009")
sketch10.AttachmentSupport = (doc.getObject("XY_Plane"), [""])
sketch10.MapMode = "FlatFace"
sketch10.AttachmentOffset = App.Placement(V(0, 0, 17), App.Rotation())
sketch10.addGeometry(Part.LineSegment(V(-14.5, -56, 0), V(-14.5, -52, 0)), False)
sketch10.addGeometry(Part.LineSegment(V(-14.5, -52, 0), V(-18, -50, 0)), False)
sketch10.addGeometry(Part.LineSegment(V(-18, -50, 0), V(-21.5, -52, 0)), False)
sketch10.addGeometry(Part.LineSegment(V(-21.5, -52, 0), V(-21.5, -56, 0)), False)
sketch10.addGeometry(Part.LineSegment(V(-21.5, -56, 0), V(-18, -58, 0)), False)
sketch10.addGeometry(Part.LineSegment(V(-18, -58, 0), V(-14.5, -56, 0)), False)
sketch10.addGeometry(Part.LineSegment(V(21.5, -56, 0), V(21.5, -52, 0)), False)
sketch10.addGeometry(Part.LineSegment(V(21.5, -52, 0), V(18, -50, 0)), False)
sketch10.addGeometry(Part.LineSegment(V(18, -50, 0), V(14.5, -52, 0)), False)
sketch10.addGeometry(Part.LineSegment(V(14.5, -52, 0), V(14.5, -56, 0)), False)
sketch10.addGeometry(Part.LineSegment(V(14.5, -56, 0), V(18, -58, 0)), False)
sketch10.addGeometry(Part.LineSegment(V(18, -58, 0), V(21.5, -56, 0)), False)
sketch10.addGeometry(Part.LineSegment(V(21.5, -17, 0), V(21.5, -13, 0)), False)
sketch10.addGeometry(Part.LineSegment(V(21.5, -13, 0), V(18, -11, 0)), False)
sketch10.addGeometry(Part.LineSegment(V(18, -11, 0), V(14.5, -13, 0)), False)
sketch10.addGeometry(Part.LineSegment(V(14.5, -13, 0), V(14.5, -17, 0)), False)
sketch10.addGeometry(Part.LineSegment(V(14.5, -17, 0), V(18, -19, 0)), False)
sketch10.addGeometry(Part.LineSegment(V(18, -19, 0), V(21.5, -17, 0)), False)
sketch10.addGeometry(Part.LineSegment(V(-14.5, -17, 0), V(-14.5, -13, 0)), False)
sketch10.addGeometry(Part.LineSegment(V(-14.5, -13, 0), V(-18, -11, 0)), False)
sketch10.addGeometry(Part.LineSegment(V(-18, -11, 0), V(-21.5, -13, 0)), False)
sketch10.addGeometry(Part.LineSegment(V(-21.5, -13, 0), V(-21.5, -17, 0)), False)
sketch10.addGeometry(Part.LineSegment(V(-21.5, -17, 0), V(-18, -19, 0)), False)
sketch10.addGeometry(Part.LineSegment(V(-18, -19, 0), V(-14.5, -17, 0)), False)
sketch10.addConstraint(Sketcher.Constraint("Coincident", 0, 2, 1, 1))
sketch10.addConstraint(Sketcher.Constraint("Coincident", 1, 2, 2, 1))
sketch10.addConstraint(Sketcher.Constraint("Coincident", 2, 2, 3, 1))
sketch10.addConstraint(Sketcher.Constraint("Coincident", 3, 2, 4, 1))
sketch10.addConstraint(Sketcher.Constraint("Coincident", 4, 2, 5, 1))
sketch10.addConstraint(Sketcher.Constraint("Coincident", 5, 2, 0, 1))
sketch10.addConstraint(Sketcher.Constraint("Coincident", 6, 2, 7, 1))
sketch10.addConstraint(Sketcher.Constraint("Coincident", 7, 2, 8, 1))
sketch10.addConstraint(Sketcher.Constraint("Coincident", 8, 2, 9, 1))
sketch10.addConstraint(Sketcher.Constraint("Coincident", 9, 2, 10, 1))
sketch10.addConstraint(Sketcher.Constraint("Coincident", 10, 2, 11, 1))
sketch10.addConstraint(Sketcher.Constraint("Coincident", 11, 2, 6, 1))
sketch10.addConstraint(Sketcher.Constraint("Coincident", 12, 2, 13, 1))
sketch10.addConstraint(Sketcher.Constraint("Coincident", 13, 2, 14, 1))
sketch10.addConstraint(Sketcher.Constraint("Coincident", 14, 2, 15, 1))
sketch10.addConstraint(Sketcher.Constraint("Coincident", 15, 2, 16, 1))
sketch10.addConstraint(Sketcher.Constraint("Coincident", 16, 2, 17, 1))
sketch10.addConstraint(Sketcher.Constraint("Coincident", 17, 2, 12, 1))
sketch10.addConstraint(Sketcher.Constraint("Coincident", 18, 2, 19, 1))
sketch10.addConstraint(Sketcher.Constraint("Coincident", 19, 2, 20, 1))
sketch10.addConstraint(Sketcher.Constraint("Coincident", 20, 2, 21, 1))
sketch10.addConstraint(Sketcher.Constraint("Coincident", 21, 2, 22, 1))
sketch10.addConstraint(Sketcher.Constraint("Coincident", 22, 2, 23, 1))
sketch10.addConstraint(Sketcher.Constraint("Coincident", 23, 2, 18, 1))
sketch10.addConstraint(Sketcher.Constraint("Vertical", 0))
sketch10.addConstraint(Sketcher.Constraint("Vertical", 3))
sketch10.addConstraint(Sketcher.Constraint("Vertical", 6))
sketch10.addConstraint(Sketcher.Constraint("Vertical", 9))
sketch10.addConstraint(Sketcher.Constraint("Vertical", 12))
sketch10.addConstraint(Sketcher.Constraint("Vertical", 15))
sketch10.addConstraint(Sketcher.Constraint("Vertical", 18))
sketch10.addConstraint(Sketcher.Constraint("Vertical", 21))
sketch10.addConstraint(Sketcher.Constraint("Symmetric", 2, 2, 6, 2, -2))
sketch10.addConstraint(Sketcher.Constraint("Symmetric", 1, 2, 7, 2, -2))
sketch10.addConstraint(Sketcher.Constraint("Symmetric", 0, 2, 8, 2, -2))
sketch10.addConstraint(Sketcher.Constraint("Symmetric", 4, 2, 10, 2, -2))
sketch10.addConstraint(Sketcher.Constraint("Symmetric", 14, 2, 18, 2, -2))
sketch10.addConstraint(Sketcher.Constraint("Symmetric", 13, 2, 19, 2, -2))
sketch10.addConstraint(Sketcher.Constraint("Symmetric", 12, 2, 20, 2, -2))
sketch10.addConstraint(Sketcher.Constraint("Symmetric", 16, 2, 22, 2, -2))
sketch10.addConstraint(Sketcher.Constraint("Parallel", 1, 4))
sketch10.addConstraint(Sketcher.Constraint("Parallel", 2, 5))
sketch10.addConstraint(Sketcher.Constraint("Parallel", 4, 7))
sketch10.addConstraint(Sketcher.Constraint("Parallel", 7, 10))
sketch10.addConstraint(Sketcher.Constraint("Parallel", 8, 11))
sketch10.addConstraint(Sketcher.Constraint("Parallel", 10, 13))
sketch10.addConstraint(Sketcher.Constraint("Parallel", 11, 14))
sketch10.addConstraint(Sketcher.Constraint("Parallel", 13, 16))
sketch10.addConstraint(Sketcher.Constraint("Parallel", 14, 17))
sketch10.addConstraint(Sketcher.Constraint("Parallel", 19, 22))
sketch10.addConstraint(Sketcher.Constraint("Parallel", 20, 23))
sketch10.addConstraint(Sketcher.Constraint("Horizontal", 0, 2, 2, 2))
sketch10.addConstraint(Sketcher.Constraint("Horizontal", 3, 2, 5, 2))
sketch10.addConstraint(Sketcher.Constraint("Horizontal", 12, 2, 14, 2))
sketch10.addConstraint(Sketcher.Constraint("Horizontal", 15, 2, 17, 2))
sketch10.addConstraint(Sketcher.Constraint("Vertical", 11, 2, 12, 2))
sketch10.addConstraint(Sketcher.Constraint("Vertical", 10, 2, 13, 2))
sketch10.addConstraint(Sketcher.Constraint("Equal", 9, 12))
sketch10.addConstraint(Sketcher.Constraint("DistanceY", 0, 1, 0, 2, Q("4 mm")))
sketch10.addConstraint(Sketcher.Constraint("Angle", 1, Q("150.000003 deg")))
sketch10.addConstraint(Sketcher.Constraint("Distance", 1, Q("4 mm")))
sketch10.addConstraint(Sketcher.Constraint("DistanceY", 0, 2, -1, 1, Q("52 mm")))
sketch10.addConstraint(Sketcher.Constraint("DistanceX", 1, 2, -1, 1, Q("18 mm")))
sketch10.addConstraint(Sketcher.Constraint("DistanceY", 12, 2, -1, 1, Q("13 mm")))
sketch10.setExpression("Constraints[58]", "Params.sketch10_height")
sketch10.setExpression("Constraints[60]", "Params.sketch10_length")
pocket6 = body.newObject("PartDesign::Pocket", "Pocket005")
pocket6.Profile = sketch10
pocket6.setExpression("Length", "Params.pocket6_length")
body2 = doc.addObject("PartDesign::Body", "Body001")
doc.recompute()

body.Placement = App.Placement(V(0, -40, 3), App.Rotation(V(0, 1, 0), 180))
boolean = body2.newObject("PartDesign::Boolean", "Boolean")
boolean.Type = "Fuse"
boolean.addObjects([body])

doc.recompute()
